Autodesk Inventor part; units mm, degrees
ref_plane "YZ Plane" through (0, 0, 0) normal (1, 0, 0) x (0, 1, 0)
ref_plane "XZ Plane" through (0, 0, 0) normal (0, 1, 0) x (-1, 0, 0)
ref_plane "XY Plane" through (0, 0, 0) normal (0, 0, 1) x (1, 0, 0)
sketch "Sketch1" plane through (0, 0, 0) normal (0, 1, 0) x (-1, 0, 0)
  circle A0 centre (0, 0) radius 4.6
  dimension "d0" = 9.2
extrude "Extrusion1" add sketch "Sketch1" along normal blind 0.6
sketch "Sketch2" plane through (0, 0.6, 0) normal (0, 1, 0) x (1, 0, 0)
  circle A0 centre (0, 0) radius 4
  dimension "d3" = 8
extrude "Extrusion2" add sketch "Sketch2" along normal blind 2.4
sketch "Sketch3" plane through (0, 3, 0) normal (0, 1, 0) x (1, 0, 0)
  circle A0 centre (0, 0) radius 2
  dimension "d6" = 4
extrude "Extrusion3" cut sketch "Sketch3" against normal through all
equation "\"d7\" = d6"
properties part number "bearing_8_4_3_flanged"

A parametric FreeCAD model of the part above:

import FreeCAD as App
import Part
import Sketcher
Q = App.Units.Quantity

doc = App.newDocument("Part")
body = doc.addObject("PartDesign::Body", "Body")

# Sketch on XZ plane
sketch1 = doc.addObject("Sketcher::SketchObject", "Sketch")
body.addObject(sketch1)
sketch1.AttachmentSupport = (doc.XZ_Plane, [""])
sketch1.MapMode = "FlatFace"
sketch1.addGeometry(Part.Circle(App.Vector(0, 0, 0), App.Vector(0, 0, 1), 4.6), False)
sketch1.addConstraint([
    Sketcher.Constraint("Coincident", 0, 3, -1, 1),
    Sketcher.Constraint("Diameter", 0, Q("9.2 mm")),
])
pad1 = doc.addObject("PartDesign::Pad", "Pad")
body.addObject(pad1)
pad1.Profile = sketch1
pad1.Length = 0.6
pad1.Reversed = True

# Sketch on XZ plane
sketch2 = doc.addObject("Sketcher::SketchObject", "Sketch001")
body.addObject(sketch2)
sketch2.AttachmentSupport = (doc.XZ_Plane, [""])
sketch2.MapMode = "FlatFace"
sketch2.AttachmentOffset = App.Placement(App.Vector(0, 0, -0.6), App.Rotation())
sketch2.addGeometry(Part.Circle(App.Vector(0, 0, 0), App.Vector(0, 0, 1), 4), False)
sketch2.addConstraint([
    Sketcher.Constraint("Coincident", 0, 3, -1, 1),
    Sketcher.Constraint("Diameter", 0, Q("8 mm")),
])
pad2 = doc.addObject("PartDesign::Pad", "Pad001")
body.addObject(pad2)
pad2.Profile = sketch2
pad2.Length = 2.4
pad2.Reversed = True

# Sketch on XZ plane
sketch3 = doc.addObject("Sketcher::SketchObject", "Sketch002")
body.addObject(sketch3)
sketch3.AttachmentSupport = (doc.XZ_Plane, [""])
sketch3.MapMode = "FlatFace"
sketch3.AttachmentOffset = App.Placement(App.Vector(0, 0, -3), App.Rotation())
sketch3.addGeometry(Part.Circle(App.Vector(0, 0, 0), App.Vector(0, 0, 1), 2), False)
sketch3.addConstraint([
    Sketcher.Constraint("Coincident", 0, 3, -1, 1),
    Sketcher.Constraint("Diameter", 0, Q("4 mm")),
])
pocket1 = doc.addObject("PartDesign::Pocket", "Pocket")
body.addObject(pocket1)
pocket1.Profile = sketch3
pocket1.Type = "ThroughAll"
pocket1.Reversed = True

doc.recompute()
